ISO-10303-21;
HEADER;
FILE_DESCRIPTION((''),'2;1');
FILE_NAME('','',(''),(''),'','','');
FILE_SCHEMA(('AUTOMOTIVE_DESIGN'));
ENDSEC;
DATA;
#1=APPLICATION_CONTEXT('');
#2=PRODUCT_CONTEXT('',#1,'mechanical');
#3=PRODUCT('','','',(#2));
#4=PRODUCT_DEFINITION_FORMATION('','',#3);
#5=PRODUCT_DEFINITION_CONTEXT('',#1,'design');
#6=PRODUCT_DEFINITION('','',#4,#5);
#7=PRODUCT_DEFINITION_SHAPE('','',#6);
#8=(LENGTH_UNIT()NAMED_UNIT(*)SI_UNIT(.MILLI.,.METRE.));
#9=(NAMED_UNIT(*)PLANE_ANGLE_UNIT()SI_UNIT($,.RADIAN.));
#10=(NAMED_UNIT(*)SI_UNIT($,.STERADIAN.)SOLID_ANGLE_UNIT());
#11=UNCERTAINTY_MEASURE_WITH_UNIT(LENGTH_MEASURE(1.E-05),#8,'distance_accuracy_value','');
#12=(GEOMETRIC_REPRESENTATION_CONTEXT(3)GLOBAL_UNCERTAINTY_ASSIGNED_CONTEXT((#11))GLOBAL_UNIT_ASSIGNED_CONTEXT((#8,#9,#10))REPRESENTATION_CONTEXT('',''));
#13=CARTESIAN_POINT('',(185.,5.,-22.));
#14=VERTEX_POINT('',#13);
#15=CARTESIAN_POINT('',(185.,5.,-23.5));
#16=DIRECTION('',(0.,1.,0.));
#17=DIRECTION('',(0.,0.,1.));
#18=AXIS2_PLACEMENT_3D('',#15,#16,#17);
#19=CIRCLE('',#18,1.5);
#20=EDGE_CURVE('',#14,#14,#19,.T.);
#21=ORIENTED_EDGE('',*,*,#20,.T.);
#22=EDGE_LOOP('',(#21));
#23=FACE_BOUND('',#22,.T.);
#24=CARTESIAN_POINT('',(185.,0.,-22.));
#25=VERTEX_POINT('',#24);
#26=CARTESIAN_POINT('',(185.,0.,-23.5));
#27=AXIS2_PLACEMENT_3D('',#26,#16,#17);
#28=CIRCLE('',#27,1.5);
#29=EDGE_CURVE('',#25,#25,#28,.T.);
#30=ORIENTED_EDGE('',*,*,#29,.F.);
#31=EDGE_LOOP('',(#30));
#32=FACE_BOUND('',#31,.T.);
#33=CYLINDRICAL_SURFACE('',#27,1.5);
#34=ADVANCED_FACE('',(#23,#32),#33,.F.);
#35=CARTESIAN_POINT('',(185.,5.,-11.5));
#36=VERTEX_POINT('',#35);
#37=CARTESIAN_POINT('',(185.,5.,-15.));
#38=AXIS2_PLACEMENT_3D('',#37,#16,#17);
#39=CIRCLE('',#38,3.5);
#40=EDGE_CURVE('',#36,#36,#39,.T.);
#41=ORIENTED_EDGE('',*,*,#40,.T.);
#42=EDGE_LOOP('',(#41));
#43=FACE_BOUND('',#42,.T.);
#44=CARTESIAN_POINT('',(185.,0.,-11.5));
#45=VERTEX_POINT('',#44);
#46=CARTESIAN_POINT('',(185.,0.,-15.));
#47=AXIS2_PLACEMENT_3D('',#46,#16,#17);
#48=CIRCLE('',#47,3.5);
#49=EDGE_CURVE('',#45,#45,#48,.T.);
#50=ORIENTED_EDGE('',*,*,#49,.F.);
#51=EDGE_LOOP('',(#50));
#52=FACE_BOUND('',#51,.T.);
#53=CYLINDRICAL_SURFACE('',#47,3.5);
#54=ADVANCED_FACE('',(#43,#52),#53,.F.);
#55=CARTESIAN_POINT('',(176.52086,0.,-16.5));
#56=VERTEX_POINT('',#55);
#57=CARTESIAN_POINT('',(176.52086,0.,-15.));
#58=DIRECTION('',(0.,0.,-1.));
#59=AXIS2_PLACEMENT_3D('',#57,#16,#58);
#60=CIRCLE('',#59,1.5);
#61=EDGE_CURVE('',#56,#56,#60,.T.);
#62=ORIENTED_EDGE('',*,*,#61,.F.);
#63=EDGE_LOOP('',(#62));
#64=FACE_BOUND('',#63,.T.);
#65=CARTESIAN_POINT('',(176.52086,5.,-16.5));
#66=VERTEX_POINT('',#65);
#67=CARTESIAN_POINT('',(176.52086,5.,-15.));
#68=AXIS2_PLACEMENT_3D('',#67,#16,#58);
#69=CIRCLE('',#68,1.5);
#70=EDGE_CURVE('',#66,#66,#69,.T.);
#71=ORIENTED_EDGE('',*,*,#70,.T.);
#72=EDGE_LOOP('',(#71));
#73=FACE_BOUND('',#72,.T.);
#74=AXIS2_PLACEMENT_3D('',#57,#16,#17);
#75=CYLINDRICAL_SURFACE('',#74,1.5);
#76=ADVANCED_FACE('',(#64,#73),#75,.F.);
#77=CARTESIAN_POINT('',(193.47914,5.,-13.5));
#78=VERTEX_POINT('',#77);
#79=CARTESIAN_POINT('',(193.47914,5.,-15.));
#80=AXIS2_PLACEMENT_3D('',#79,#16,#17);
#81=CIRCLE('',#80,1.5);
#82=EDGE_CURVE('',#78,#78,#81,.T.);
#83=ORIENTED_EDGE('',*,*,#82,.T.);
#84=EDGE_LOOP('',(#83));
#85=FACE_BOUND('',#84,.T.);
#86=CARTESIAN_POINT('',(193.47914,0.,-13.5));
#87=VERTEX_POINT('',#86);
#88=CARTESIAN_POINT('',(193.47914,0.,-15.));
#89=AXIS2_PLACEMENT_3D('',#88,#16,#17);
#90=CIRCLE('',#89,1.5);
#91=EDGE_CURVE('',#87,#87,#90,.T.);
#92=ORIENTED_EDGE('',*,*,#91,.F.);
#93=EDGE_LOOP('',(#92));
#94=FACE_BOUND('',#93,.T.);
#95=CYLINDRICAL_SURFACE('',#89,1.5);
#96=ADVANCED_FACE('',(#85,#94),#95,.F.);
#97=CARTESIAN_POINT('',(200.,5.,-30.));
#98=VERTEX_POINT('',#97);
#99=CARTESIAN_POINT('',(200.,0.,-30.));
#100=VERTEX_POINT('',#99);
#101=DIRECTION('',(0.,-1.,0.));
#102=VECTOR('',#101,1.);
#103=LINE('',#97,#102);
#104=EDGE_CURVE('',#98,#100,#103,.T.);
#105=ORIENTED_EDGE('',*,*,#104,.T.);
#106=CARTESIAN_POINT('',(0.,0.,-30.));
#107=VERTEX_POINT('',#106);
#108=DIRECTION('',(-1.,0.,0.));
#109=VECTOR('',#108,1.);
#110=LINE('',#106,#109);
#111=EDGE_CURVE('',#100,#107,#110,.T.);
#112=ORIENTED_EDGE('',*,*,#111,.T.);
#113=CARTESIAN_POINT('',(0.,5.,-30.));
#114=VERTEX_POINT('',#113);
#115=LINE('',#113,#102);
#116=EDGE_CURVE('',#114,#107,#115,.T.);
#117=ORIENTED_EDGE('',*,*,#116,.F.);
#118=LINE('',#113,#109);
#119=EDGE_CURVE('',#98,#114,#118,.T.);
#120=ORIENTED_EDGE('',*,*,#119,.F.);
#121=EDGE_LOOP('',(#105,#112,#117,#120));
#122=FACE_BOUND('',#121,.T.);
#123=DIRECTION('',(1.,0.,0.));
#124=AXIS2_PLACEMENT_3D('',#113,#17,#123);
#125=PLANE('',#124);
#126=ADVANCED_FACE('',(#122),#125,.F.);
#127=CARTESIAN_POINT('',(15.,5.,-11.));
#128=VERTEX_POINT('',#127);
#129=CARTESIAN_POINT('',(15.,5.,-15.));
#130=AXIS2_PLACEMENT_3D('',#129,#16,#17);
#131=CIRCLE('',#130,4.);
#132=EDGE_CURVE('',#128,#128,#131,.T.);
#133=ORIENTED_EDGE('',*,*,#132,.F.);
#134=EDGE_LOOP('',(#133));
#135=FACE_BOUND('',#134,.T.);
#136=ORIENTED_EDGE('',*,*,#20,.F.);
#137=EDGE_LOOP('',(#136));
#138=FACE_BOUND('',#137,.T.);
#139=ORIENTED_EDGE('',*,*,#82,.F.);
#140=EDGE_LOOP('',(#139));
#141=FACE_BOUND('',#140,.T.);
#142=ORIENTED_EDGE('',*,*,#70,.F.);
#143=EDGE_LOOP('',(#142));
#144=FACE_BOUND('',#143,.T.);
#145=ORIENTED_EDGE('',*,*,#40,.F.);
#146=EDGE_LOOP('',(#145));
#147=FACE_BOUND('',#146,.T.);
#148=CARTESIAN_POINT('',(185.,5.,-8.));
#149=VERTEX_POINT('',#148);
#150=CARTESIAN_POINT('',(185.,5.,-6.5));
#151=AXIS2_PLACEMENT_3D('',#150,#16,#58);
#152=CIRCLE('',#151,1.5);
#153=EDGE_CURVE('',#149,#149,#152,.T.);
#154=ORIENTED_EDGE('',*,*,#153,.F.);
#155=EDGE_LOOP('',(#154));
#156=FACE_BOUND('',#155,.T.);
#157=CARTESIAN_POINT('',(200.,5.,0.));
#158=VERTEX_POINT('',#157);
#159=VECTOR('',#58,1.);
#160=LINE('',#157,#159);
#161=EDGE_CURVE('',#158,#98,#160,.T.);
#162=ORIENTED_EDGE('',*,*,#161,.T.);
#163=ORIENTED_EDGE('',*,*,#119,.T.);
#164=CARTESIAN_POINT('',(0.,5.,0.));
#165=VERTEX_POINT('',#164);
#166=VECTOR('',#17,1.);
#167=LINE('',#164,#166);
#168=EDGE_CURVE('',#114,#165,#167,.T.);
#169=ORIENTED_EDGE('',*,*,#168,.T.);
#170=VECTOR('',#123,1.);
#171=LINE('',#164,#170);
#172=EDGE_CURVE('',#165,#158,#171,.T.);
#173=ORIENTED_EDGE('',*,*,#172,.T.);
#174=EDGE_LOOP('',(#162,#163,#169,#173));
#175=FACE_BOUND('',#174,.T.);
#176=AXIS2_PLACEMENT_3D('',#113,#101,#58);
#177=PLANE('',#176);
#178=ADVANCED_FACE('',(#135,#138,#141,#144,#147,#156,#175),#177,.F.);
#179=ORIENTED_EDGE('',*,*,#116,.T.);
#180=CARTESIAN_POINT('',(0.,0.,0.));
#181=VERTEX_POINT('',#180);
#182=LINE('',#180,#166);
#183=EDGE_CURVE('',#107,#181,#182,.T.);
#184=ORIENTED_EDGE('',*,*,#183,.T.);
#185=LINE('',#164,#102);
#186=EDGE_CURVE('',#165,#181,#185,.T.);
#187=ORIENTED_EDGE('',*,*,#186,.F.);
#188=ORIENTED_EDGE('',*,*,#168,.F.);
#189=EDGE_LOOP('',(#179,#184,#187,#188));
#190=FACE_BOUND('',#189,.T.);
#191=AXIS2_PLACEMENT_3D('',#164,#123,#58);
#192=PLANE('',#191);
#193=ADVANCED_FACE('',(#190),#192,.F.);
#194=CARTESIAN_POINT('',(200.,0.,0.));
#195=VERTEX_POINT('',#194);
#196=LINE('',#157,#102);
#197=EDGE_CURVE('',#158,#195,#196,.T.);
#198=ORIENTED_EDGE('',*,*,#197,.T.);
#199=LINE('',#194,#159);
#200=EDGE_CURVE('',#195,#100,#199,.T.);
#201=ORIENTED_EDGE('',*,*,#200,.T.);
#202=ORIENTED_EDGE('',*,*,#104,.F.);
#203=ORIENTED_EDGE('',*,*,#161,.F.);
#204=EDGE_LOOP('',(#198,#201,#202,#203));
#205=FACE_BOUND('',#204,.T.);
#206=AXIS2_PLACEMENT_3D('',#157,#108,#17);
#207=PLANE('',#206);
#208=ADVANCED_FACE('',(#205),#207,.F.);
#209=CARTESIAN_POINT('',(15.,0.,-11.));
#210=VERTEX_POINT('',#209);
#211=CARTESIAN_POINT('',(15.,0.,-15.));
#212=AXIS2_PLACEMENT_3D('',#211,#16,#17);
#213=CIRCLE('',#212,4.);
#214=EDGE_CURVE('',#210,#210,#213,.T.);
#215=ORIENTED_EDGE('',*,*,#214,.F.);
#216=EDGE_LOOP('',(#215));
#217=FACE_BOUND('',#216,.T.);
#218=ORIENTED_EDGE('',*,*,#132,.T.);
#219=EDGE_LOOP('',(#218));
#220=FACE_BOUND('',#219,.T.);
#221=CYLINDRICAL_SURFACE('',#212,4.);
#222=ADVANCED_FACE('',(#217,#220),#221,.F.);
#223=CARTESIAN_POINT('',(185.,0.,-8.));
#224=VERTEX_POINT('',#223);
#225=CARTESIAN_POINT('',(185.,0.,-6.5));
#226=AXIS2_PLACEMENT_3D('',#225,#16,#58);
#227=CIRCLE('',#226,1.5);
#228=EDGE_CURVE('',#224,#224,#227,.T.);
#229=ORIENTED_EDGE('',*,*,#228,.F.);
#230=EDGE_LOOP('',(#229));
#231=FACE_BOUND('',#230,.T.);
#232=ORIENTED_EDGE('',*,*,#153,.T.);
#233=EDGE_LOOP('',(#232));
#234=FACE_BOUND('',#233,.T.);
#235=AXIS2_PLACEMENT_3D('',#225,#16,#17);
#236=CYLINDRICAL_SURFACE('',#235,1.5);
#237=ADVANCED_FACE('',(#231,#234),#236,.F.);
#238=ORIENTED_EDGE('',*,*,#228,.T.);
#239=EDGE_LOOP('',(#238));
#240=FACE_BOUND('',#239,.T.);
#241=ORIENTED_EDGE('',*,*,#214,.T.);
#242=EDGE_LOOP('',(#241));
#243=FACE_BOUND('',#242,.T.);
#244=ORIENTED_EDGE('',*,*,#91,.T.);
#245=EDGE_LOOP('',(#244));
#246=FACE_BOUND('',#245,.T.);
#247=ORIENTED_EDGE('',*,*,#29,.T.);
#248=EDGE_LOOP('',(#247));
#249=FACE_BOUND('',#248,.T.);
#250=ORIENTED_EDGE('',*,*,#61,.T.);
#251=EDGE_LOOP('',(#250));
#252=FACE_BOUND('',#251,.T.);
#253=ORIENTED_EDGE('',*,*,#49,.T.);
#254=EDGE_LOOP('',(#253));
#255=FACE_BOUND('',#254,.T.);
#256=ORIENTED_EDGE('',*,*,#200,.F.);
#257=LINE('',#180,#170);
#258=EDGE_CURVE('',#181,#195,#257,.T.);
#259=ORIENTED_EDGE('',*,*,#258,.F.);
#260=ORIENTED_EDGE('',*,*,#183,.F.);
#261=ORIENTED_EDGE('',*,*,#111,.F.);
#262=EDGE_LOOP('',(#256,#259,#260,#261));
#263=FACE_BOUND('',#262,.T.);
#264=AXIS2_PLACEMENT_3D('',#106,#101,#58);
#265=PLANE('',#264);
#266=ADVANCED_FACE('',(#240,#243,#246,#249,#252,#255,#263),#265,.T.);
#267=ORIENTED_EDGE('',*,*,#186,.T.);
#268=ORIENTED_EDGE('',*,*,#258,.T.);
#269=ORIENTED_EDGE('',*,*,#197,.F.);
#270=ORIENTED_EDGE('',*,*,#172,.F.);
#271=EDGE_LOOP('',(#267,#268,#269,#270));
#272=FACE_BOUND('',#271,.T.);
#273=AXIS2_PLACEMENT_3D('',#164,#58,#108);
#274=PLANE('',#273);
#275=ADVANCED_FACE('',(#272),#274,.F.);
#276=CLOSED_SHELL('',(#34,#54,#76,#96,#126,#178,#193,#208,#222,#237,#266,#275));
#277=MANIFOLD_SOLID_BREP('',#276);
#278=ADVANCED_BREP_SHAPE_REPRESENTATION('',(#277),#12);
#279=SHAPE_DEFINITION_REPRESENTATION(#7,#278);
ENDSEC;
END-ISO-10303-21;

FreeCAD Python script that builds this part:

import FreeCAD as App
import Part
import Sketcher


def add_polygon(sketch, points):
    """Adds a closed chain of lines whose ends are joined by coincident constraints."""
    first, n = sketch.GeometryCount, len(points)
    for a, b in zip(points, points[1:] + points[:1]):
        sketch.addGeometry(Part.LineSegment(App.Vector(*a, 0), App.Vector(*b, 0)), False)
    for i in range(n):
        sketch.addConstraint(Sketcher.Constraint("Coincident", first + i, 2, first + (i + 1) % n, 1))

doc = App.newDocument("Part")
body = doc.addObject("PartDesign::Body", "Body")

# Sketch on XZ plane
sketch1 = body.newObject("Sketcher::SketchObject", "Sketch")
sketch1.AttachmentSupport = (doc.getObject("XZ_Plane"), [""])
sketch1.MapMode = "FlatFace"
add_polygon(sketch1, [(0, -30), (0, 0), (200, 0), (200, -30)])  # lines 0-3
sketch1.addConstraint([
    Sketcher.Constraint("Vertical", 0),
    Sketcher.Constraint("Horizontal", 1),
    Sketcher.Constraint("Vertical", 2),
    Sketcher.Constraint("Horizontal", 3),
    Sketcher.Constraint("Coincident", 0, 2, -1, 1),
    Sketcher.Constraint("DistanceX", 1, 1, 1, 2, 200.0),
    Sketcher.Constraint("DistanceY", 0, 1, 0, 2, 30.0),
])
pad1 = body.newObject("PartDesign::Pad", "Pad")
pad1.Profile = sketch1
pad1.Length = 5
pad1.Reversed = True

# Sketch on XZ plane
sketch2 = body.newObject("Sketcher::SketchObject", "Sketch001")
sketch2.AttachmentSupport = (doc.getObject("XZ_Plane"), [""])
sketch2.MapMode = "FlatFace"
sketch2.AttachmentOffset = App.Placement(App.Vector(0, 0, -5), App.Rotation())
sketch2.addGeometry([
    Part.Circle(App.Vector(15, -15, 0), App.Vector(0, 0, 1), 4),  # 0
    Part.Circle(App.Vector(185, -15, 0), App.Vector(0, 0, 1), 3.5),  # 1
    Part.Circle(App.Vector(185, -23.5, 0), App.Vector(0, 0, 1), 1.5),  # 2
    Part.Circle(App.Vector(193.5, -15, 0), App.Vector(0, 0, 1), 1.5),  # 3
    Part.Circle(App.Vector(176.5, -15, 0), App.Vector(0, 0, 1), 1.5),  # 4
    Part.Circle(App.Vector(185, -6.5, 0), App.Vector(0, 0, 1), 1.5),  # 5
], False)
sketch2.addConstraint([
    Sketcher.Constraint("Equal", 2, 3),
    Sketcher.Constraint("Equal", 3, 4),
    Sketcher.Constraint("Equal", 4, 5),
    Sketcher.Constraint("Horizontal", 0, 3, 1, 3),
    Sketcher.Constraint("Horizontal", 1, 3, 3, 3),
    Sketcher.Constraint("Horizontal", 3, 3, 4, 3),
    Sketcher.Constraint("Vertical", 1, 3, 2, 3),
    Sketcher.Constraint("Vertical", 2, 3, 5, 3),
    Sketcher.Constraint("Diameter", 0, 8.0),
    Sketcher.Constraint("Diameter", 1, 7.0),
    Sketcher.Constraint("Diameter", 2, 3.0),
    Sketcher.Constraint("DistanceX", -1, 1, 0, 3, 15.0),
    Sketcher.Constraint("DistanceY", 0, 3, -1, 1, 15.0),
    Sketcher.Constraint("DistanceX", -1, 1, 1, 3, 185.0),
    Sketcher.Constraint("DistanceY", 2, 3, 5, 3, 17.0),
    Sketcher.Constraint("DistanceY", 2, 3, -1, 1, 23.5),
    Sketcher.Constraint("DistanceX", -1, 1, 3, 3, 193.47914),
    Sketcher.Constraint("DistanceX", -1, 1, 4, 3, 176.52086),
])
pocket1 = body.newObject("PartDesign::Pocket", "Pocket")
pocket1.Profile = sketch2
pocket1.Length = 5
pocket1.Reversed = True

doc.recompute()
